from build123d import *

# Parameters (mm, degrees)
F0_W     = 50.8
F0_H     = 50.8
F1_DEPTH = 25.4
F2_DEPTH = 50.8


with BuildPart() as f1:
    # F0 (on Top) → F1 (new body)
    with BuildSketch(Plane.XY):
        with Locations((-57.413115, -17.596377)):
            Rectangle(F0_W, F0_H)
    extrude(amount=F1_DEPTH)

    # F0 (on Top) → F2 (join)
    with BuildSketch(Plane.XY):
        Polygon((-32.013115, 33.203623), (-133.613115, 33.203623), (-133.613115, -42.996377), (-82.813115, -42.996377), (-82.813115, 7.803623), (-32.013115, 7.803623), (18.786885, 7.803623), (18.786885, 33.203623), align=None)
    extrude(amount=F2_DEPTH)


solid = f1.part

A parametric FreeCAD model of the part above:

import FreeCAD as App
import Part
import Sketcher

V = App.Vector
Q = App.Units.Quantity


def add_polygon(sketch, points):
    """Adds a closed chain of lines whose ends are joined by coincident constraints."""
    first, n = sketch.GeometryCount, len(points)
    for a, b in zip(points, points[1:] + points[:1]):
        sketch.addGeometry(Part.LineSegment(App.Vector(*a, 0), App.Vector(*b, 0)), False)
    for i in range(n):
        sketch.addConstraint(Sketcher.Constraint("Coincident", first + i, 2, first + (i + 1) % n, 1))

doc = App.newDocument("Part")
body = doc.addObject("PartDesign::Body", "Body")

sketch1 = body.newObject("Sketcher::SketchObject", "Sketch")
sketch1.AttachmentSupport = (doc.getObject("XY_Plane"), [""])
sketch1.MapMode = "FlatFace"
add_polygon(sketch1, [(-83, 8), (-83, -43), (-32, -43), (-32, 8)])
sketch1.addConstraint(Sketcher.Constraint("Vertical", 0))
sketch1.addConstraint(Sketcher.Constraint("Horizontal", 1))
sketch1.addConstraint(Sketcher.Constraint("Vertical", 2))
sketch1.addConstraint(Sketcher.Constraint("Horizontal", 3))
sketch1.addConstraint(Sketcher.Constraint("Equal", 3, 0))
sketch1.addConstraint(Sketcher.Constraint("DistanceX", 1, 1, 1, 2, Q("2 in")))
sketch1.addConstraint(Sketcher.Constraint("DistanceX", 0, 2, -1, 1, Q("82.813115 mm")))
sketch1.addConstraint(Sketcher.Constraint("DistanceY", 0, 2, -1, 1, Q("42.996377 mm")))
pad1 = body.newObject("PartDesign::Pad", "Pad")
pad1.Profile = sketch1
pad1.Length = Q("1 in")

sketch2 = body.newObject("Sketcher::SketchObject", "Sketch001")
sketch2.AttachmentSupport = (doc.getObject("XY_Plane"), [""])
sketch2.MapMode = "FlatFace"
add_polygon(sketch2, [(-134, 33), (-134, -43), (-83, -43), (-83, 8), (19, 8), (19, 33)])
sketch2.addConstraint(Sketcher.Constraint("Vertical", 0))
sketch2.addConstraint(Sketcher.Constraint("Horizontal", 1))
sketch2.addConstraint(Sketcher.Constraint("Vertical", 2))
sketch2.addConstraint(Sketcher.Constraint("Horizontal", 3))
sketch2.addConstraint(Sketcher.Constraint("Vertical", 4))
sketch2.addConstraint(Sketcher.Constraint("Horizontal", 5))
sketch2.addConstraint(Sketcher.Constraint("Equal", 1, 2))
sketch2.addConstraint(Sketcher.Constraint("DistanceX", 1, 1, 1, 2, Q("2 in")))
sketch2.addConstraint(Sketcher.Constraint("DistanceX", 3, 1, 3, 2, Q("4 in")))
sketch2.addConstraint(Sketcher.Constraint("DistanceY", 0, 2, 0, 1, Q("3 in")))
sketch2.addConstraint(Sketcher.Constraint("DistanceX", 0, 2, -1, 1, Q("133.613115 mm")))
sketch2.addConstraint(Sketcher.Constraint("DistanceY", 0, 2, -1, 1, Q("42.996377 mm")))
pad2 = body.newObject("PartDesign::Pad", "Pad001")
pad2.Profile = sketch2
pad2.Length = Q("2 in")

doc.recompute()
